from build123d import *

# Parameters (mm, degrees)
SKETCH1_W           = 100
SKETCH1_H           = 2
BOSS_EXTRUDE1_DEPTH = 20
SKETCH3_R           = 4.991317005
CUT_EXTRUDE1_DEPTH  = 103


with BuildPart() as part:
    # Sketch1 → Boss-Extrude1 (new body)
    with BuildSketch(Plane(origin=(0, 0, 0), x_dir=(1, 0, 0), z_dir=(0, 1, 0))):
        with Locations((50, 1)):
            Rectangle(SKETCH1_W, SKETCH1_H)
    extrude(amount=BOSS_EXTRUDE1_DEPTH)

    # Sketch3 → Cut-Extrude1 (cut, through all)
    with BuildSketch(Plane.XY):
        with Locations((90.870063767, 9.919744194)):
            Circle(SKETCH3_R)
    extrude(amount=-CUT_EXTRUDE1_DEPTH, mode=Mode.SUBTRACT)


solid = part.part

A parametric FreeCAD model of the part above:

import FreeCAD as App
import Part
import Sketcher
Q = App.Units.Quantity

doc = App.newDocument("Part")
params = doc.addObject("Spreadsheet::Sheet", "Params")
for row, (alias, value) in enumerate([
    ("sketch1_width", "100 mm"),
    ("sketch1_height", "2 mm"),
    ("pad1_length", "20 mm"),
], start=1):
    params.set(f"A{row}", alias)
    params.set(f"B{row}", "=" + value)
    params.setAlias(f"B{row}", alias)

body = doc.addObject("PartDesign::Body", "Body")

sketch1 = body.newObject("Sketcher::SketchObject", "Sketch")
sketch1.AttachmentSupport = (doc.getObject("XZ_Plane"), [""])
sketch1.MapMode = "FlatFace"
sketch1.addGeometry([
    Part.LineSegment(App.Vector(0, -2, 0), App.Vector(0, 0, 0)),
    Part.LineSegment(App.Vector(0, 0, 0), App.Vector(100, 0, 0)),
    Part.LineSegment(App.Vector(100, 0, 0), App.Vector(100, -2, 0)),
    Part.LineSegment(App.Vector(100, -2, 0), App.Vector(0, -2, 0)),
], False)
sketch1.addConstraint([
    Sketcher.Constraint("Coincident", 0, 2, 1, 1),
    Sketcher.Constraint("Coincident", 1, 2, 2, 1),
    Sketcher.Constraint("Coincident", 2, 2, 3, 1),
    Sketcher.Constraint("Coincident", 3, 2, 0, 1),
    Sketcher.Constraint("Vertical", 0),
    Sketcher.Constraint("Horizontal", 1),
    Sketcher.Constraint("Vertical", 2),
    Sketcher.Constraint("Horizontal", 3),
    Sketcher.Constraint("Coincident", 0, 2, -1, 1),
    Sketcher.Constraint("DistanceX", 1, 1, 1, 2, Q("100 mm")),
    Sketcher.Constraint("DistanceY", 0, 1, 0, 2, Q("2 mm")),
])
sketch1.setExpression("Constraints[9]", "Params.sketch1_width")
sketch1.setExpression("Constraints[10]", "Params.sketch1_height")
pad1 = body.newObject("PartDesign::Pad", "Pad")
pad1.Profile = sketch1
pad1.setExpression("Length", "Params.pad1_length")
pad1.Reversed = True

sketch2 = body.newObject("Sketcher::SketchObject", "Sketch001")
sketch2.AttachmentSupport = (doc.getObject("XY_Plane"), [""])
sketch2.MapMode = "FlatFace"
sketch2.addGeometry(Part.Circle(App.Vector(90.870064, 9.919744, 0), App.Vector(0, 0, 1), 4.991317), False)
sketch2.addConstraint([
    Sketcher.Constraint("Diameter", 0, Q("9.982634 mm")),
    Sketcher.Constraint("DistanceX", -1, 1, 0, 3, Q("90.870064 mm")),
    Sketcher.Constraint("DistanceY", -1, 1, 0, 3, Q("9.919744 mm")),
])
pocket1 = body.newObject("PartDesign::Pocket", "Pocket")
pocket1.Profile = sketch2
pocket1.Type = "ThroughAll"

doc.recompute()
